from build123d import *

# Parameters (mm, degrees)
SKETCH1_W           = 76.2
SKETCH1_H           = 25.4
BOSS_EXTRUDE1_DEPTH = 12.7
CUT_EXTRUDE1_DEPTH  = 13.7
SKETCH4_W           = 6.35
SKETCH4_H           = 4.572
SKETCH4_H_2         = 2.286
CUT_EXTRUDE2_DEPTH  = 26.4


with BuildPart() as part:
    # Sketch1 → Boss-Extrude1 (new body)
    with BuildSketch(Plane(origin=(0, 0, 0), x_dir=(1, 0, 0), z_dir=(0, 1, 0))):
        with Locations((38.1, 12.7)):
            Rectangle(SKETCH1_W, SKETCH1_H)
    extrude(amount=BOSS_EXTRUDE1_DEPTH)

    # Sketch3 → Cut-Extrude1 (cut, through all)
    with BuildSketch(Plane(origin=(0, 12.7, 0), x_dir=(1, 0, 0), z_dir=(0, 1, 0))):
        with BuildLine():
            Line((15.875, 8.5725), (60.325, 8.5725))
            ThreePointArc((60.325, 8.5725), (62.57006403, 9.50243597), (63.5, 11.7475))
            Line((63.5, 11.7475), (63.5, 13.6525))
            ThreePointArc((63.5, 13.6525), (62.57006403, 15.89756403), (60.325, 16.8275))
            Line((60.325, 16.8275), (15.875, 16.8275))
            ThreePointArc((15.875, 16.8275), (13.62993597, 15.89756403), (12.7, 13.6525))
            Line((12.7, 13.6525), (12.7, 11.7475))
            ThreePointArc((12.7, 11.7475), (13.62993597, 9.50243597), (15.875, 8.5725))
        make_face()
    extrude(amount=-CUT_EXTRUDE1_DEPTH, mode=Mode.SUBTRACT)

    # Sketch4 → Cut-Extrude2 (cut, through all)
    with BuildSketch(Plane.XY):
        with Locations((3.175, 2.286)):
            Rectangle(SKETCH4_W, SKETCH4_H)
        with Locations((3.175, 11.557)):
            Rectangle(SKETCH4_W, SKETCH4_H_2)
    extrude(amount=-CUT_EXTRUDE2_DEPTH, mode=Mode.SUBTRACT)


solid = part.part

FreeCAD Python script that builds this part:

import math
import FreeCAD as App
import Part
import Sketcher
Q = App.Units.Quantity


def add_polygon(sketch, points):
    """Adds a closed chain of lines whose ends are joined by coincident constraints."""
    first, n = sketch.GeometryCount, len(points)
    for a, b in zip(points, points[1:] + points[:1]):
        sketch.addGeometry(Part.LineSegment(App.Vector(*a, 0), App.Vector(*b, 0)), False)
    for i in range(n):
        sketch.addConstraint(Sketcher.Constraint("Coincident", first + i, 2, first + (i + 1) % n, 1))

doc = App.newDocument("Part")
params = doc.addObject("Spreadsheet::Sheet", "Params")
for row, (alias, value) in enumerate([
    ("sketch1_width", "3 in"),
    ("sketch1_height", "1 in"),
    ("pad1_length", "0.5 in"),
    ("sketch2_radius", "0.125 in"),
    ("sketch2_width", "1.75 in"),
    ("sketch3_width", "0.25 in"),
    ("sketch3_height", "0.18 in"),
    ("sketch3_height2", "0.09 in"),
], start=1):
    params.set(f"A{row}", alias)
    params.set(f"B{row}", "=" + value)
    params.setAlias(f"B{row}", alias)

body = doc.addObject("PartDesign::Body", "Body")

# Sketch on XZ plane
sketch1 = body.newObject("Sketcher::SketchObject", "Sketch")
sketch1.AttachmentSupport = (doc.getObject("XZ_Plane"), [""])
sketch1.MapMode = "FlatFace"
add_polygon(sketch1, [(0, -25.4), (0, 0), (76.2, 0), (76.2, -25.4)])  # lines 0-3
sketch1.addConstraint([
    Sketcher.Constraint("Vertical", 0),
    Sketcher.Constraint("Horizontal", 1),
    Sketcher.Constraint("Vertical", 2),
    Sketcher.Constraint("Horizontal", 3),
    Sketcher.Constraint("Coincident", 0, 2, -1, 1),
    Sketcher.Constraint("DistanceX", 1, 1, 1, 2, Q("3 in")),
    Sketcher.Constraint("DistanceY", 0, 1, 0, 2, Q("1 in")),
])
sketch1.setExpression("Constraints[9]", "Params.sketch1_width")
sketch1.setExpression("Constraints[10]", "Params.sketch1_height")
pad1 = body.newObject("PartDesign::Pad", "Pad")
pad1.Profile = sketch1
pad1.setExpression("Length", "Params.pad1_length")
pad1.Reversed = True

# Sketch on XZ plane
sketch2 = body.newObject("Sketcher::SketchObject", "Sketch001")
sketch2.AttachmentSupport = (doc.getObject("XZ_Plane"), [""])
sketch2.MapMode = "FlatFace"
sketch2.AttachmentOffset = App.Placement(App.Vector(0, 0, -0.5 * 25.4), App.Rotation())
sketch2.addGeometry([
    Part.LineSegment(App.Vector(15.875, -8.5725, 0), App.Vector(60.325, -8.5725, 0)),  # 0
    Part.ArcOfCircle(Part.Circle(App.Vector(60.325, -11.7475, 0), App.Vector(0, 0, 1), 3.175), math.radians(0), math.radians(90)),  # 1
    Part.LineSegment(App.Vector(63.5, -11.7475, 0), App.Vector(63.5, -13.6525, 0)),  # 2
    Part.ArcOfCircle(Part.Circle(App.Vector(60.325, -13.6525, 0), App.Vector(0, 0, 1), 3.175), math.radians(-90), math.radians(0)),  # 3
    Part.LineSegment(App.Vector(60.325, -16.8275, 0), App.Vector(15.875, -16.8275, 0)),  # 4
    Part.ArcOfCircle(Part.Circle(App.Vector(15.875, -13.6525, 0), App.Vector(0, 0, 1), 3.175), math.radians(-180), math.radians(-90)),  # 5
    Part.LineSegment(App.Vector(12.7, -13.6525, 0), App.Vector(12.7, -11.7475, 0)),  # 6
    Part.ArcOfCircle(Part.Circle(App.Vector(15.875, -11.7475, 0), App.Vector(0, 0, 1), 3.175), math.radians(90), math.radians(180)),  # 7
], False)
sketch2.addConstraint([
    Sketcher.Constraint("Tangent", 0, 2, 1, 2),
    Sketcher.Constraint("Tangent", 1, 1, 2, 1),
    Sketcher.Constraint("Tangent", 2, 2, 3, 2),
    Sketcher.Constraint("Tangent", 3, 1, 4, 1),
    Sketcher.Constraint("Tangent", 4, 2, 5, 2),
    Sketcher.Constraint("Tangent", 5, 1, 6, 1),
    Sketcher.Constraint("Tangent", 6, 2, 7, 2),
    Sketcher.Constraint("Tangent", 7, 1, 0, 1),
    Sketcher.Constraint("Horizontal", 0),
    Sketcher.Constraint("Vertical", 2),
    Sketcher.Constraint("Horizontal", 4),
    Sketcher.Constraint("Vertical", 6),
    Sketcher.Constraint("Equal", 1, 3),
    Sketcher.Constraint("Equal", 3, 5),
    Sketcher.Constraint("Equal", 5, 7),
    Sketcher.Constraint("Radius", 1, Q("0.125 in")),
    Sketcher.Constraint("DistanceX", 0, 1, 0, 2, Q("1.75 in")),
    Sketcher.Constraint("DistanceX", -1, 1, 1, 1, Q("2.5 in")),
    Sketcher.Constraint("DistanceY", 3, 3, 0, 2, Q("0.2 in")),
    Sketcher.Constraint("DistanceY", 1, 3, -1, 1, Q("0.4625 in")),
])
sketch2.setExpression("Constraints[15]", "Params.sketch2_radius")
sketch2.setExpression("Constraints[16]", "Params.sketch2_width")
pocket1 = body.newObject("PartDesign::Pocket", "Pocket")
pocket1.Profile = sketch2
pocket1.Type = "ThroughAll"
pocket1.Reversed = True

# Sketch on XY plane
sketch3 = body.newObject("Sketcher::SketchObject", "Sketch002")
sketch3.AttachmentSupport = (doc.getObject("XY_Plane"), [""])
sketch3.MapMode = "FlatFace"
add_polygon(sketch3, [(0, 4.572), (0, 0), (6.35, 0), (6.35, 4.572)])  # lines 0-3
add_polygon(sketch3, [(0, 12.7), (0, 10.414), (6.35, 10.414), (6.35, 12.7)])  # lines 4-7
sketch3.addConstraint([
    Sketcher.Constraint("Vertical", 0),
    Sketcher.Constraint("Horizontal", 1),
    Sketcher.Constraint("Vertical", 2),
    Sketcher.Constraint("Horizontal", 3),
    Sketcher.Constraint("Vertical", 4),
    Sketcher.Constraint("Horizontal", 5),
    Sketcher.Constraint("Vertical", 6),
    Sketcher.Constraint("Horizontal", 7),
    Sketcher.Constraint("Coincident", 0, 2, -1, 1),
    Sketcher.Constraint("PointOnObject", 4, 2, -2),
    Sketcher.Constraint("Vertical", 2, 2, 5, 2),
    Sketcher.Constraint("DistanceX", 1, 1, 1, 2, Q("0.25 in")),
    Sketcher.Constraint("DistanceY", 0, 2, 0, 1, Q("0.18 in")),
    Sketcher.Constraint("DistanceY", 4, 2, 4, 1, Q("0.09 in")),
    Sketcher.Constraint("DistanceY", -1, 1, 6, 2, Q("0.5 in")),
])
sketch3.setExpression("Constraints[19]", "Params.sketch3_width")
sketch3.setExpression("Constraints[20]", "Params.sketch3_height")
sketch3.setExpression("Constraints[21]", "Params.sketch3_height2")
pocket2 = body.newObject("PartDesign::Pocket", "Pocket001")
pocket2.Profile = sketch3
pocket2.Type = "ThroughAll"

doc.recompute()
